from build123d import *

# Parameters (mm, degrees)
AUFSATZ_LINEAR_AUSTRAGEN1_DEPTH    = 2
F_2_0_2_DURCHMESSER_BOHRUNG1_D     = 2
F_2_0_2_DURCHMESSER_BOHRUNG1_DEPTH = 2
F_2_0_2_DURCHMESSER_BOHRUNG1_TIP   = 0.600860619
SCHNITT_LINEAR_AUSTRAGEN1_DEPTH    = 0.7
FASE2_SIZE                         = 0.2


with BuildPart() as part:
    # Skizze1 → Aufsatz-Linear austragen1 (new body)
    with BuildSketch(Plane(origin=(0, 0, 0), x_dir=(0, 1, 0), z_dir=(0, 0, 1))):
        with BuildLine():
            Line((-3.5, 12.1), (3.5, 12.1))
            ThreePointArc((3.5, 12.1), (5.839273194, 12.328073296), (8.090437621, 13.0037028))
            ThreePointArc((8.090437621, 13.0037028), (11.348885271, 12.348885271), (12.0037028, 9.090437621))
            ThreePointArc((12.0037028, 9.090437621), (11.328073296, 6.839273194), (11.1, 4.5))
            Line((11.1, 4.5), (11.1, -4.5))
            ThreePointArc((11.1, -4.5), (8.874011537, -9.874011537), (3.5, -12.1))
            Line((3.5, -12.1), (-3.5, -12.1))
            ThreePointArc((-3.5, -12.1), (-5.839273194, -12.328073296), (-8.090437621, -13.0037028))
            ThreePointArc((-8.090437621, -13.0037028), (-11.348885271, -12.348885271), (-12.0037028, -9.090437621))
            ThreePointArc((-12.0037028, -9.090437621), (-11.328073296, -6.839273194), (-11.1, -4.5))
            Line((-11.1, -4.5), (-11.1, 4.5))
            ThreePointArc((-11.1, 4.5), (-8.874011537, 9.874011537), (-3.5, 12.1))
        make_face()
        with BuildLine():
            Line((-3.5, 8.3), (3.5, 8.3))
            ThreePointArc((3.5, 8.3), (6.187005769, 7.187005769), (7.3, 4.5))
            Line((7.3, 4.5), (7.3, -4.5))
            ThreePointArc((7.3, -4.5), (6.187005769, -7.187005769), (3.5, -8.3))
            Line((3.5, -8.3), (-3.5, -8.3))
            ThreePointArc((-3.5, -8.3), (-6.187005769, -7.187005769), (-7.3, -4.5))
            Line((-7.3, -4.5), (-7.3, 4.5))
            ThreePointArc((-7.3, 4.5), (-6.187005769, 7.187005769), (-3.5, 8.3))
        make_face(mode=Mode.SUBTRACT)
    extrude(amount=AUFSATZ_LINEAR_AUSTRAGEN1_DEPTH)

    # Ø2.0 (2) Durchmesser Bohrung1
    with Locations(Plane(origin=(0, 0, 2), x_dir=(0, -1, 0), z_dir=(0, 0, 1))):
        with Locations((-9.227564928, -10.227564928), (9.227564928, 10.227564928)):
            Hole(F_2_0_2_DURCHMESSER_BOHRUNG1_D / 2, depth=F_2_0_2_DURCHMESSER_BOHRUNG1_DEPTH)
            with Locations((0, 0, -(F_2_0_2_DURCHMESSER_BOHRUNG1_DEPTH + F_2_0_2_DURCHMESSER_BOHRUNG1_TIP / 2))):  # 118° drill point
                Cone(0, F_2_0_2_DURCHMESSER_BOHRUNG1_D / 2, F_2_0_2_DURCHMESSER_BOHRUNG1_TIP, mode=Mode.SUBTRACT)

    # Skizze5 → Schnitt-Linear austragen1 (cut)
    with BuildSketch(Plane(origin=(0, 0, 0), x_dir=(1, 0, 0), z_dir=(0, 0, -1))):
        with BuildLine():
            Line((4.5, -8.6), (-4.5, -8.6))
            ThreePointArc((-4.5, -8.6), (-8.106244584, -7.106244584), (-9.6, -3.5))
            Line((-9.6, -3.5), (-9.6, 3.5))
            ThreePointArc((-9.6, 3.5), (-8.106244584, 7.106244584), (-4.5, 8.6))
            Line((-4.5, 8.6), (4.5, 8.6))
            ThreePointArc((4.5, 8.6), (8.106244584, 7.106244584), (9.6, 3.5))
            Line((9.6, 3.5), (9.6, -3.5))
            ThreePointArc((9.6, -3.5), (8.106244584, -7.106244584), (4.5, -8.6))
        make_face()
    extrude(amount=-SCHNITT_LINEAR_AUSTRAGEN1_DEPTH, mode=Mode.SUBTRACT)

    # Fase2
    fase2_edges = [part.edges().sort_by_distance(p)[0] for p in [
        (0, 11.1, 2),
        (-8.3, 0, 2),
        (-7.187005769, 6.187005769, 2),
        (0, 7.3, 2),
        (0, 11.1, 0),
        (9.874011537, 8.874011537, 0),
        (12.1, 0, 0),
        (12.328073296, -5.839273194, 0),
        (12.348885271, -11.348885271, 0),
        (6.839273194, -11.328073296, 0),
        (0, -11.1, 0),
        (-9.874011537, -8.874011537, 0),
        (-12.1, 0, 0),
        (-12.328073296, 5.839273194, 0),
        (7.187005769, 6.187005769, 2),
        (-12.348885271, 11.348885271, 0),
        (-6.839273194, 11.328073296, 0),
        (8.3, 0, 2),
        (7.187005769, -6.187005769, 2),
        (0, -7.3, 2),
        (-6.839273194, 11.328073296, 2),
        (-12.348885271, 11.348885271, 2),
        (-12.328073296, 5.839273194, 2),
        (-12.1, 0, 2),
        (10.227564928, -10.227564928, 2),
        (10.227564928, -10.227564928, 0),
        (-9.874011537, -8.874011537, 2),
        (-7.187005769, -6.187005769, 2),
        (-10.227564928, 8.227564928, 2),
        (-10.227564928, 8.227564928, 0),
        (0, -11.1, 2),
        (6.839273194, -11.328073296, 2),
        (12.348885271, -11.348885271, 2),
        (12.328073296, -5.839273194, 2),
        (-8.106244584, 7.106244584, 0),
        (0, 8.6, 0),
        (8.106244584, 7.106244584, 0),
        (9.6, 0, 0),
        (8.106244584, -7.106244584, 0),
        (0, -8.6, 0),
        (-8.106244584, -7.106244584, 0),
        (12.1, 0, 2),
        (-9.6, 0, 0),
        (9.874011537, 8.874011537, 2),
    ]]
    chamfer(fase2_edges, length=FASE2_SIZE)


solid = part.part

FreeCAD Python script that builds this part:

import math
import FreeCAD as App
import Part
import Sketcher
from FreeCAD import Vector
Q = App.Units.Quantity


def edges_at(feature, points):
    """Names of the edges that pass closest to the given points."""
    edges = feature.Shape.Edges
    near = lambda p: min(range(len(edges)), key=lambda i: edges[i].distToShape(Part.Vertex(*p))[0])
    return sorted({f"Edge{near(p) + 1}" for p in points})

doc = App.newDocument("Part")
body = doc.addObject("PartDesign::Body", "Body")

# Sketch on XY plane
sketch1 = doc.addObject("Sketcher::SketchObject", "Sketch")
body.addObject(sketch1)
sketch1.AttachmentSupport = (doc.XY_Plane, [""])
sketch1.MapMode = "FlatFace"
sketch1.addGeometry([
    Part.LineSegment(Vector(-12.1, 3.5, 0), Vector(-12.1, -3.5, 0)),  # 0
    Part.ArcOfCircle(Part.Circle(Vector(-4.5, -3.5, 0), Vector(0, 0, 1), 7.6), math.radians(180), math.radians(270)),  # 1
    Part.LineSegment(Vector(-4.5, -11.1, 0), Vector(4.5, -11.1, 0)),  # 2
    Part.ArcOfCircle(Part.Circle(Vector(4.5, -23.2, 0), Vector(0, 0, 1), 12.1), math.radians(68), math.radians(90)),  # 3
    Part.ArcOfCircle(Part.Circle(Vector(10.2, -9.2, 0), Vector(0, 0, 1), 3), math.radians(-112), math.radians(22)),  # 4
    Part.ArcOfCircle(Part.Circle(Vector(24.2, -3.5, 0), Vector(0, 0, 1), 12.1), math.radians(180), math.radians(202)),  # 5
    Part.LineSegment(Vector(12.1, -3.5, 0), Vector(12.1, 3.5, 0)),  # 6
    Part.ArcOfCircle(Part.Circle(Vector(4.5, 3.5, 0), Vector(0, 0, 1), 7.6), math.radians(0), math.radians(90)),  # 7
    Part.LineSegment(Vector(4.5, 11.1, 0), Vector(-4.5, 11.1, 0)),  # 8
    Part.ArcOfCircle(Part.Circle(Vector(-4.5, 23.2, 0), Vector(0, 0, 1), 12.1), math.radians(-112), math.radians(-90)),  # 9
    Part.ArcOfCircle(Part.Circle(Vector(-10.2, 9.2, 0), Vector(0, 0, 1), 3), math.radians(68), math.radians(202)),  # 10
    Part.ArcOfCircle(Part.Circle(Vector(-24.2, 3.5, 0), Vector(0, 0, 1), 12.1), math.radians(0), math.radians(22)),  # 11
    Part.LineSegment(Vector(-8.3, -3.5, 0), Vector(-8.3, 3.5, 0)),  # 12
    Part.ArcOfCircle(Part.Circle(Vector(-4.5, 3.5, 0), Vector(0, 0, 1), 3.8), math.radians(90), math.radians(180)),  # 13
    Part.LineSegment(Vector(-4.5, 7.3, 0), Vector(4.5, 7.3, 0)),  # 14
    Part.ArcOfCircle(Part.Circle(Vector(4.5, 3.5, 0), Vector(0, 0, 1), 3.8), math.radians(0), math.radians(90)),  # 15
    Part.LineSegment(Vector(8.3, 3.5, 0), Vector(8.3, -3.5, 0)),  # 16
    Part.ArcOfCircle(Part.Circle(Vector(4.5, -3.5, 0), Vector(0, 0, 1), 3.8), math.radians(-90), math.radians(0)),  # 17
    Part.LineSegment(Vector(4.5, -7.3, 0), Vector(-4.5, -7.3, 0)),  # 18
    Part.ArcOfCircle(Part.Circle(Vector(-4.5, -3.5, 0), Vector(0, 0, 1), 3.8), math.radians(180), math.radians(270)),  # 19
], False)
sketch1.addConstraint([
    Sketcher.Constraint("Tangent", 0, 2, 1, 1),
    Sketcher.Constraint("Tangent", 1, 2, 2, 1),
    Sketcher.Constraint("Tangent", 2, 2, 3, 2),
    Sketcher.Constraint("Tangent", 3, 1, 4, 1),
    Sketcher.Constraint("Tangent", 4, 2, 5, 2),
    Sketcher.Constraint("Tangent", 5, 1, 6, 1),
    Sketcher.Constraint("Tangent", 6, 2, 7, 1),
    Sketcher.Constraint("Tangent", 7, 2, 8, 1),
    Sketcher.Constraint("Tangent", 8, 2, 9, 2),
    Sketcher.Constraint("Tangent", 9, 1, 10, 1),
    Sketcher.Constraint("Tangent", 10, 2, 11, 2),
    Sketcher.Constraint("Tangent", 11, 1, 0, 1),
    Sketcher.Constraint("Tangent", 12, 2, 13, 2),
    Sketcher.Constraint("Tangent", 13, 1, 14, 1),
    Sketcher.Constraint("Tangent", 14, 2, 15, 2),
    Sketcher.Constraint("Tangent", 15, 1, 16, 1),
    Sketcher.Constraint("Tangent", 16, 2, 17, 2),
    Sketcher.Constraint("Tangent", 17, 1, 18, 1),
    Sketcher.Constraint("Tangent", 18, 2, 19, 2),
    Sketcher.Constraint("Tangent", 19, 1, 12, 1),
    Sketcher.Constraint("Vertical", 0),
    Sketcher.Constraint("Horizontal", 2),
    Sketcher.Constraint("Vertical", 6),
    Sketcher.Constraint("Horizontal", 8),
    Sketcher.Constraint("Vertical", 12),
    Sketcher.Constraint("Horizontal", 14),
    Sketcher.Constraint("Vertical", 16),
    Sketcher.Constraint("Horizontal", 18),
    Sketcher.Constraint("Coincident", 15, 3, 7, 3),
    Sketcher.Constraint("Coincident", 19, 3, 1, 3),
    Sketcher.Constraint("Equal", 3, 5),
    Sketcher.Constraint("Equal", 1, 7),
    Sketcher.Constraint("Equal", 5, 9),
    Sketcher.Constraint("Equal", 4, 10),
    Sketcher.Constraint("Equal", 9, 11),
    Sketcher.Constraint("Equal", 13, 15),
    Sketcher.Constraint("Equal", 15, 17),
    Sketcher.Constraint("Equal", 17, 19),
    Sketcher.Constraint("Symmetric", 1, 3, 7, 3, -1, 1),
    Sketcher.Constraint("Symmetric", 4, 3, 10, 3, -1, 1),
    Sketcher.Constraint("Horizontal", 1, 3, 5, 3),
    Sketcher.Constraint("Vertical", 3, 3, 7, 3),
    Sketcher.Constraint("Radius", 4, Q("3 mm")),
    Sketcher.Constraint("Radius", 1, Q("7.6 mm")),
    Sketcher.Constraint("Radius", 13, Q("3.8 mm")),
    Sketcher.Constraint("DistanceX", 2, 1, 2, 2, Q("9 mm")),
    Sketcher.Constraint("DistanceY", 0, 2, 0, 1, Q("7 mm")),
    Sketcher.Constraint("Radius", 3, Q("12.110617 mm")),
])
pad1 = doc.addObject("PartDesign::Pad", "Pad")
body.addObject(pad1)
pad1.Profile = sketch1
pad1.Length = 2

# Sketch on XY plane
sketch2 = doc.addObject("Sketcher::SketchObject", "Sketch001")
body.addObject(sketch2)
sketch2.AttachmentSupport = (doc.XY_Plane, [""])
sketch2.MapMode = "FlatFace"
sketch2.AttachmentOffset = App.Placement(Vector(0, 0, 2), App.Rotation())
sketch2.addGeometry([
    Part.Circle(Vector(-10.2, 9.2, 0), Vector(0, 0, 1), 1),
    Part.Circle(Vector(10.2, -9.2, 0), Vector(0, 0, 1), 1),
], False)
sketch2.addConstraint([
    Sketcher.Constraint("Equal", 0, 1),
    Sketcher.Constraint("Symmetric", 0, 3, 1, 3, -1, 1),
    Sketcher.Constraint("Diameter", 0, Q("2 mm")),
    Sketcher.Constraint("DistanceX", 0, 3, 1, 3, Q("20.45513 mm")),
    Sketcher.Constraint("DistanceY", 1, 3, 0, 3, Q("18.45513 mm")),
])
doc.recompute()
hole = doc.addObject("PartDesign::Hole", "Hole")
body.addObject(hole)
hole.Profile = sketch2
hole.ThreadType = "None"
hole.Diameter = 2
hole.DepthType = "Dimension"
hole.Depth = 2
hole.DrillPoint = "Angled"
hole.DrillPointAngle = 118

# Sketch on XY plane
sketch3 = doc.addObject("Sketcher::SketchObject", "Sketch002")
body.addObject(sketch3)
sketch3.AttachmentSupport = (doc.XY_Plane, [""])
sketch3.MapMode = "FlatFace"
sketch3.addGeometry([
    Part.LineSegment(Vector(-4, 9, 0), Vector(4, 9, 0)),  # 0
    Part.ArcOfCircle(Part.Circle(Vector(4, 4, 0), Vector(0, 0, 1), 5), math.radians(0), math.radians(90)),  # 1
    Part.LineSegment(Vector(10, 4, 0), Vector(10, -4, 0)),  # 2
    Part.ArcOfCircle(Part.Circle(Vector(4, -4, 0), Vector(0, 0, 1), 5), math.radians(-90), math.radians(0)),  # 3
    Part.LineSegment(Vector(4, -9, 0), Vector(-4, -9, 0)),  # 4
    Part.ArcOfCircle(Part.Circle(Vector(-4, -4, 0), Vector(0, 0, 1), 5), math.radians(180), math.radians(270)),  # 5
    Part.LineSegment(Vector(-10, -4, 0), Vector(-10, 4, 0)),  # 6
    Part.ArcOfCircle(Part.Circle(Vector(-4, 4, 0), Vector(0, 0, 1), 5), math.radians(90), math.radians(180)),  # 7
], False)
sketch3.addConstraint([
    Sketcher.Constraint("Tangent", 0, 2, 1, 2),
    Sketcher.Constraint("Tangent", 1, 1, 2, 1),
    Sketcher.Constraint("Tangent", 2, 2, 3, 2),
    Sketcher.Constraint("Tangent", 3, 1, 4, 1),
    Sketcher.Constraint("Tangent", 4, 2, 5, 2),
    Sketcher.Constraint("Tangent", 5, 1, 6, 1),
    Sketcher.Constraint("Tangent", 6, 2, 7, 2),
    Sketcher.Constraint("Tangent", 7, 1, 0, 1),
    Sketcher.Constraint("Horizontal", 0),
    Sketcher.Constraint("Vertical", 2),
    Sketcher.Constraint("Horizontal", 4),
    Sketcher.Constraint("Vertical", 6),
    Sketcher.Constraint("Equal", 1, 3),
    Sketcher.Constraint("Equal", 3, 5),
    Sketcher.Constraint("Equal", 5, 7),
    Sketcher.Constraint("Symmetric", 1, 3, 5, 3, -1, 1),
    Sketcher.Constraint("Radius", 1, Q("5.1 mm")),
    Sketcher.Constraint("DistanceX", 0, 1, 0, 2, Q("9 mm")),
    Sketcher.Constraint("DistanceY", 2, 2, 2, 1, Q("7 mm")),
])
pocket1 = doc.addObject("PartDesign::Pocket", "Pocket")
body.addObject(pocket1)
pocket1.Profile = sketch3
pocket1.Length = 0.7
pocket1.Reversed = True
doc.recompute()

chamfer = doc.addObject("PartDesign::Chamfer", "Chamfer")
body.addObject(chamfer)
chamfer.Base = (pocket1, edges_at(pocket1, [
    (0, 11.1, 2),
    (-8.3, 0, 2),
    (-7.187, 6.187, 2),
    (0, 7.3, 2),
    (0, 11.1, 0),
    (9.874, 8.874, 0),
    (12.1, 0, 0),
    (12.328, -5.839, 0),
    (12.349, -11.349, 0),
    (6.839, -11.328, 0),
    (0, -11.1, 0),
    (-9.874, -8.874, 0),
    (-12.1, 0, 0),
    (-12.328, 5.839, 0),
    (7.187, 6.187, 2),
    (-12.349, 11.349, 0),
    (-6.839, 11.328, 0),
    (8.3, 0, 2),
    (7.187, -6.187, 2),
    (0, -7.3, 2),
    (-6.839, 11.328, 2),
    (-12.349, 11.349, 2),
    (-12.328, 5.839, 2),
    (-12.1, 0, 2),
    (10.228, -10.228, 2),
    (10.228, -10.228, 0),
    (-9.874, -8.874, 2),
    (-7.187, -6.187, 2),
    (-10.228, 8.228, 2),
    (-10.228, 8.228, 0),
    (0, -11.1, 2),
    (6.839, -11.328, 2),
    (12.349, -11.349, 2),
    (12.328, -5.839, 2),
    (-8.106, 7.106, 0),
    (0, 8.6, 0),
    (8.106, 7.106, 0),
    (9.6, 0, 0),
    (8.106, -7.106, 0),
    (0, -8.6, 0),
    (-8.106, -7.106, 0),
    (12.1, 0, 2),
    (-9.6, 0, 0),
    (9.874, 8.874, 2),
]))
chamfer.Size = 0.2

doc.recompute()
